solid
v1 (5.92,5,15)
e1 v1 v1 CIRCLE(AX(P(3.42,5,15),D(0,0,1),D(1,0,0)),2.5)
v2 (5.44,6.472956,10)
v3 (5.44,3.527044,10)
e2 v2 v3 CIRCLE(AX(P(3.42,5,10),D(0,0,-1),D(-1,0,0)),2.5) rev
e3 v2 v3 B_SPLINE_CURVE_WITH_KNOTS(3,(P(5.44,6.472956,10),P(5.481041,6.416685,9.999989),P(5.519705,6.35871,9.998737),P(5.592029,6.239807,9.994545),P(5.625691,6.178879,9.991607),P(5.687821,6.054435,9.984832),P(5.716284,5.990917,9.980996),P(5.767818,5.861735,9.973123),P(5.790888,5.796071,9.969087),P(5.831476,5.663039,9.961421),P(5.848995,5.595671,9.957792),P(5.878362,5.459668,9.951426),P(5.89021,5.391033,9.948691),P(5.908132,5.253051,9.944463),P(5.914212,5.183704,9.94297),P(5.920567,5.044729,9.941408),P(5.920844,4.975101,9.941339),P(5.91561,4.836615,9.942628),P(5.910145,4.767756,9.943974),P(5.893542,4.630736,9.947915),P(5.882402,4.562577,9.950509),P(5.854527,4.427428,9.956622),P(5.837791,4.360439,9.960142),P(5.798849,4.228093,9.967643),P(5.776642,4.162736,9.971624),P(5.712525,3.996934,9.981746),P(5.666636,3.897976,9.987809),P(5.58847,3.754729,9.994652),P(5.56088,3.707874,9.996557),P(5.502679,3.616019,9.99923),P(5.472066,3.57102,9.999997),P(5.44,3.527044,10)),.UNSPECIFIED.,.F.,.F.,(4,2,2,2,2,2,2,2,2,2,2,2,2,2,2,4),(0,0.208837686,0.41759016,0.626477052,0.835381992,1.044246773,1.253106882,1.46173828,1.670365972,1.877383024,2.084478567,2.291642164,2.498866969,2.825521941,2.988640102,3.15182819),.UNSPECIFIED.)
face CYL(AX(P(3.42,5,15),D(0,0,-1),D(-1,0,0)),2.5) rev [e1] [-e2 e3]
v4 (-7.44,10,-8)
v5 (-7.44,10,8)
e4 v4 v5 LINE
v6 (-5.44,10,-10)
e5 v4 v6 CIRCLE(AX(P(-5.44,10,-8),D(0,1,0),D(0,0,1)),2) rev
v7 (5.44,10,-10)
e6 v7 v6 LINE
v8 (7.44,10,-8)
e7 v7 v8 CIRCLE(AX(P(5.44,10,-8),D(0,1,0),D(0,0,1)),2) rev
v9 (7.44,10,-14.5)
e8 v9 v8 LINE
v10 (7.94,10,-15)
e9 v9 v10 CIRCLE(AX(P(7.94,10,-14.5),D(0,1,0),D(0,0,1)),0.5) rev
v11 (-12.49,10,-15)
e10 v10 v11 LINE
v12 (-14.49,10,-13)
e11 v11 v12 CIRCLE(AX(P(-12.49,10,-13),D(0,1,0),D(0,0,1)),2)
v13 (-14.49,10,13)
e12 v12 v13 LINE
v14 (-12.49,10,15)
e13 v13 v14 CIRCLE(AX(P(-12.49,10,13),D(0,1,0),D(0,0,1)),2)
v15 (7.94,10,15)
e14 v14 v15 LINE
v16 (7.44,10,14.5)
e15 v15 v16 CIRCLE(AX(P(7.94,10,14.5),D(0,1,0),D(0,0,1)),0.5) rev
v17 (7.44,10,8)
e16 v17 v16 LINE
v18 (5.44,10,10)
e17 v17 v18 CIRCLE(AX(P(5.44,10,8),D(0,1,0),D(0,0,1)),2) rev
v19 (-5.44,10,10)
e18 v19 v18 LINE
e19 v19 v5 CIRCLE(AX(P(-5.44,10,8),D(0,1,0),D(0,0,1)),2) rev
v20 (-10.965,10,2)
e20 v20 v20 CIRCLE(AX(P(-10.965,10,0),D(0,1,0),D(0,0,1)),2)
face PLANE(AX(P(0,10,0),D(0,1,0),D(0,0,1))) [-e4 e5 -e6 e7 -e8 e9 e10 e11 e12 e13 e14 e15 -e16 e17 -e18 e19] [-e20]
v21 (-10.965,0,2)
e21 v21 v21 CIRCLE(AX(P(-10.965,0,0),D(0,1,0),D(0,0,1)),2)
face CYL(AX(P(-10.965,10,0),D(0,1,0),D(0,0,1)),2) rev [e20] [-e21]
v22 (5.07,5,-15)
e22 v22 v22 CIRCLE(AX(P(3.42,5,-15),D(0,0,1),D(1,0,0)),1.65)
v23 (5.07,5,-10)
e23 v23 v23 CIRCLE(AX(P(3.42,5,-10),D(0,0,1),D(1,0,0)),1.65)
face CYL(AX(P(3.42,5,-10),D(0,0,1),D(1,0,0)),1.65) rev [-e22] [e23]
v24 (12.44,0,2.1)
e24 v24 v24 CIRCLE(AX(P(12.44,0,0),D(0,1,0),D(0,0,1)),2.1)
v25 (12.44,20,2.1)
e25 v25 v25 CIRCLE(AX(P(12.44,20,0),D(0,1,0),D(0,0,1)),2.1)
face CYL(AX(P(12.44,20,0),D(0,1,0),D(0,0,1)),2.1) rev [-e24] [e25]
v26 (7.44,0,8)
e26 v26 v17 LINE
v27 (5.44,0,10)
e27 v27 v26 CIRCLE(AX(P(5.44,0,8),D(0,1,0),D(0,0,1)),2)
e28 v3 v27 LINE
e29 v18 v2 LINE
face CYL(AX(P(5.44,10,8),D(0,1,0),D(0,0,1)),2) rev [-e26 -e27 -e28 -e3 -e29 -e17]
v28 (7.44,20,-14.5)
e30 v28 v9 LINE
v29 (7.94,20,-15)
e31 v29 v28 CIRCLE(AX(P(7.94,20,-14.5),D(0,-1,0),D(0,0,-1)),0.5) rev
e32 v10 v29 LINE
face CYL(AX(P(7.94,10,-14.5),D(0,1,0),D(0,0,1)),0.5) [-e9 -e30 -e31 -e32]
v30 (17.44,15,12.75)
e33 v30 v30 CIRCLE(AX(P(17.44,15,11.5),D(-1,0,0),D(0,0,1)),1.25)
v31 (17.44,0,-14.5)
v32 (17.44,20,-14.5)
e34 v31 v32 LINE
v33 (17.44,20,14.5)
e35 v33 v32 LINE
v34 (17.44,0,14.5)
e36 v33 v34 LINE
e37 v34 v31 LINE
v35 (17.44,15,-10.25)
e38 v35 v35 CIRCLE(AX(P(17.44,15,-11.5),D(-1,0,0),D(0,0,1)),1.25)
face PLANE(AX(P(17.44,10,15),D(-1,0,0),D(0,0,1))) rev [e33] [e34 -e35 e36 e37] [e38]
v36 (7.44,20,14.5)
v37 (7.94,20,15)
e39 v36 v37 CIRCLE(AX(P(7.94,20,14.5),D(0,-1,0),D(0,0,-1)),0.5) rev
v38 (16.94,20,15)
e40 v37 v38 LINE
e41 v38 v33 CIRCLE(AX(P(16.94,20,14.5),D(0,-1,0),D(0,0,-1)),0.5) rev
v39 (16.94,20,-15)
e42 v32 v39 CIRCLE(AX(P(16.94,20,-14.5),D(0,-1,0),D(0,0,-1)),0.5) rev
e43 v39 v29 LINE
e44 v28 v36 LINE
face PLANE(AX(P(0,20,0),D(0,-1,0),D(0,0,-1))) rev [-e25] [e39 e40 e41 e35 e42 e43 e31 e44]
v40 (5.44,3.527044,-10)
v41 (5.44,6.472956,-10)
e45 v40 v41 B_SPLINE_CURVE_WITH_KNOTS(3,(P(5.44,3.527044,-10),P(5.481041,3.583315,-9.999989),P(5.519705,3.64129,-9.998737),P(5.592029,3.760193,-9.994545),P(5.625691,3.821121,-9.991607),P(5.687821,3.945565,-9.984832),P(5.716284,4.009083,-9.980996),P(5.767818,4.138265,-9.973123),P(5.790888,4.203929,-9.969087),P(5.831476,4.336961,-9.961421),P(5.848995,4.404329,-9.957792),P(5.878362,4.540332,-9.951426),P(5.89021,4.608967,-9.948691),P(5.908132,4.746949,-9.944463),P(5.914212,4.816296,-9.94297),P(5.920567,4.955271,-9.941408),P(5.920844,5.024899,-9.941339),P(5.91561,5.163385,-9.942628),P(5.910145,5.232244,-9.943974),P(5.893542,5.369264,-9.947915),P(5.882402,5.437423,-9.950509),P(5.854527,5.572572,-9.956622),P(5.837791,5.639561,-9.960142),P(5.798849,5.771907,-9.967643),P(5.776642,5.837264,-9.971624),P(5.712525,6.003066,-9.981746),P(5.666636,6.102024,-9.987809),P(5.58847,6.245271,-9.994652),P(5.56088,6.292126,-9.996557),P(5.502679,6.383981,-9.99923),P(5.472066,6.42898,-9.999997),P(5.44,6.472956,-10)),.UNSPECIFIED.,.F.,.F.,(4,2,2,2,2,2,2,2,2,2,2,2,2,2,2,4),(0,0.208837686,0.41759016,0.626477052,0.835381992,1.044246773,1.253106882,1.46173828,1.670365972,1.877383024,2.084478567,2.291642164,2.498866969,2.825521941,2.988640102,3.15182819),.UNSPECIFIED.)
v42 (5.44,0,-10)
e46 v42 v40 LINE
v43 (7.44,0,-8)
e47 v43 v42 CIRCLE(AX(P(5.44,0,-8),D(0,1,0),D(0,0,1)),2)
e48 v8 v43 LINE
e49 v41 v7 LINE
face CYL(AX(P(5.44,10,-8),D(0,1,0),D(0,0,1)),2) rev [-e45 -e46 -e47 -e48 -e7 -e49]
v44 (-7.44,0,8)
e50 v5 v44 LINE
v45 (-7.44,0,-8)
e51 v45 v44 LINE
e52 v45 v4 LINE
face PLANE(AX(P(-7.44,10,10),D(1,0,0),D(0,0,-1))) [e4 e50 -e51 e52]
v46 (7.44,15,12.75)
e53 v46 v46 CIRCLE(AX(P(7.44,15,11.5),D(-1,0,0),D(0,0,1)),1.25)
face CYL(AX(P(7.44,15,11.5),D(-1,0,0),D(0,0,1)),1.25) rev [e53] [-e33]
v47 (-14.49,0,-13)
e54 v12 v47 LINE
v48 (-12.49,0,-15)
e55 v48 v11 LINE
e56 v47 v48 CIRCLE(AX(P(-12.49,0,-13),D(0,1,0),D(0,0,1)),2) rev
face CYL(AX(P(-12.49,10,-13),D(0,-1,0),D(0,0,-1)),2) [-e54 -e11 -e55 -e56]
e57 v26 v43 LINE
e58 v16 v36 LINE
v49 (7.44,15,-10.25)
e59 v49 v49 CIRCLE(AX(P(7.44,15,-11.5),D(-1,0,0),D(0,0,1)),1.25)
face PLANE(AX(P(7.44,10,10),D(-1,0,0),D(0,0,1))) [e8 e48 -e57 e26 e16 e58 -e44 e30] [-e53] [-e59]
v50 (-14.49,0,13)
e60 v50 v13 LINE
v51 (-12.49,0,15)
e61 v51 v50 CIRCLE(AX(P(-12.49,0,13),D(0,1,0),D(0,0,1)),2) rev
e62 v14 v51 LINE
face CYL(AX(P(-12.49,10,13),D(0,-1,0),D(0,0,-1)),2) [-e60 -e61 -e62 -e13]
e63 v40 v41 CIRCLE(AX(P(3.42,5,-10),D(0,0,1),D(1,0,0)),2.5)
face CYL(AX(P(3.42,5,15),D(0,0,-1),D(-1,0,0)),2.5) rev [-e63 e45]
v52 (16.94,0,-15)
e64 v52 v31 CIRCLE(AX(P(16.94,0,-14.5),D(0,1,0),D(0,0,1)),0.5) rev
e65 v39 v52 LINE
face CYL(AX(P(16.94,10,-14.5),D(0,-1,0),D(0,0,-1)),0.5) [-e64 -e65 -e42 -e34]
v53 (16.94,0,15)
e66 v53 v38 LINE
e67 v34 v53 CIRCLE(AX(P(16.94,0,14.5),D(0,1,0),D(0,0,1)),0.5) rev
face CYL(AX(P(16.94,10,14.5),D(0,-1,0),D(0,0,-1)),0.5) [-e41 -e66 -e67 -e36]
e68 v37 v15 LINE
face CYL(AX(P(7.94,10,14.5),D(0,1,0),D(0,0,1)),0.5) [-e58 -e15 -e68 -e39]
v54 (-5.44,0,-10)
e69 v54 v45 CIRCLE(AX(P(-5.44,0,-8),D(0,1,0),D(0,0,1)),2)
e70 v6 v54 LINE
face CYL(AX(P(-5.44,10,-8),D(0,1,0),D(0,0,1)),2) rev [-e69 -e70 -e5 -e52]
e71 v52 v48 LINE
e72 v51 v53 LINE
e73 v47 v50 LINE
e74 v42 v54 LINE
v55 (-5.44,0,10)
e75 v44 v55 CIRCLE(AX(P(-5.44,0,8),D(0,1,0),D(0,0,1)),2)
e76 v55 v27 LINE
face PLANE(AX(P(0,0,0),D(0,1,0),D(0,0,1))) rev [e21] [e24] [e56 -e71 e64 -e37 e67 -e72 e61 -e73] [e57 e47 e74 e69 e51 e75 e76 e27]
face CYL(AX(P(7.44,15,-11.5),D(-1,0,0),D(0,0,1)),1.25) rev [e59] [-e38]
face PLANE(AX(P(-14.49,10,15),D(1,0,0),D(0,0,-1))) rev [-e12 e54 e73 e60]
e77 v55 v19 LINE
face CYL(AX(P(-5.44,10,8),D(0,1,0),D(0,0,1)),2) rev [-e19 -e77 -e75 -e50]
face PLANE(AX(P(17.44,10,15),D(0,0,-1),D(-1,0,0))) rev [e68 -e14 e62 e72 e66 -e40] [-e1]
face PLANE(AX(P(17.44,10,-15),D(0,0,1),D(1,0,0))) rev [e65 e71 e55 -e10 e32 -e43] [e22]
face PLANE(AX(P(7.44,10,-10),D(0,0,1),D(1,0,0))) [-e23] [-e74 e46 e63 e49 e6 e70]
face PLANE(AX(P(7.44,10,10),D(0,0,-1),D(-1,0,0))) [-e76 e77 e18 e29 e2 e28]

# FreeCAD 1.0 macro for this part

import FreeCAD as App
import Part
import Sketcher

V = App.Vector
Q = App.Units.Quantity


def edges_at(feature, points):
    """Names of the edges that pass closest to the given points."""
    edges = feature.Shape.Edges
    near = lambda p: min(range(len(edges)), key=lambda i: edges[i].distToShape(Part.Vertex(*p))[0])
    return sorted({f"Edge{near(p) + 1}" for p in points})


def add_polygon(sketch, points):
    """Adds a closed chain of lines whose ends are joined by coincident constraints."""
    first, n = sketch.GeometryCount, len(points)
    for a, b in zip(points, points[1:] + points[:1]):
        sketch.addGeometry(Part.LineSegment(App.Vector(*a, 0), App.Vector(*b, 0)), False)
    for i in range(n):
        sketch.addConstraint(Sketcher.Constraint("Coincident", first + i, 2, first + (i + 1) % n, 1))

doc = App.newDocument("Part")
body = doc.addObject("PartDesign::Body", "Body")

# Sketch on XZ plane
sketch1 = doc.addObject("Sketcher::SketchObject", "Sketch")
body.addObject(sketch1)
sketch1.AttachmentSupport = (doc.XZ_Plane, [""])
sketch1.MapMode = "FlatFace"
add_polygon(sketch1, [(-14.49, -15), (-14.49, 15), (17.44, 15), (17.44, -15)])  # lines 0-3
add_polygon(sketch1, [(7.44, 10), (-7.44, 10), (-7.44, -10), (7.44, -10)])  # lines 4-7
sketch1.addConstraint(Sketcher.Constraint("Vertical", 0))
sketch1.addConstraint(Sketcher.Constraint("Horizontal", 1))
sketch1.addConstraint(Sketcher.Constraint("Vertical", 2))
sketch1.addConstraint(Sketcher.Constraint("Horizontal", 3))
sketch1.addConstraint(Sketcher.Constraint("Horizontal", 4))
sketch1.addConstraint(Sketcher.Constraint("Vertical", 5))
sketch1.addConstraint(Sketcher.Constraint("Horizontal", 6))
sketch1.addConstraint(Sketcher.Constraint("Vertical", 7))
sketch1.addConstraint(Sketcher.Constraint("Symmetric", 4, 2, 6, 2, -1, 1))
sketch1.addConstraint(Sketcher.Constraint("DistanceY", 0, 1, 0, 2, Q("30 mm")))
sketch1.addConstraint(Sketcher.Constraint("DistanceY", 5, 2, 5, 1, Q("20 mm")))
sketch1.addConstraint(Sketcher.Constraint("DistanceY", -1, 1, 0, 2, Q("15 mm")))
sketch1.addConstraint(Sketcher.Constraint("DistanceX", 6, 2, 2, 2, Q("10 mm")))
sketch1.addConstraint(Sketcher.Constraint("DistanceX", 1, 1, 1, 2, Q("31.93 mm")))
sketch1.addConstraint(Sketcher.Constraint("DistanceX", 4, 2, 4, 1, Q("14.88 mm")))
pad1 = doc.addObject("PartDesign::Pad", "Pad")
body.addObject(pad1)
pad1.Profile = sketch1
pad1.Length = 10
pad1.Reversed = True

# Sketch on XZ plane
sketch2 = doc.addObject("Sketcher::SketchObject", "Sketch001")
body.addObject(sketch2)
sketch2.AttachmentSupport = (doc.XZ_Plane, [""])
sketch2.MapMode = "FlatFace"
sketch2.AttachmentOffset = App.Placement(V(0, 0, -10), App.Rotation())
add_polygon(sketch2, [(7.44, -15), (7.44, 15), (17.44, 15), (17.44, -15)])  # lines 0-3
sketch2.addConstraint(Sketcher.Constraint("Vertical", 0))
sketch2.addConstraint(Sketcher.Constraint("Horizontal", 1))
sketch2.addConstraint(Sketcher.Constraint("Vertical", 2))
sketch2.addConstraint(Sketcher.Constraint("Horizontal", 3))
sketch2.addConstraint(Sketcher.Constraint("DistanceX", 1, 1, 1, 2, Q("10 mm")))
sketch2.addConstraint(Sketcher.Constraint("DistanceY", 0, 1, 0, 2, Q("30 mm")))
sketch2.addConstraint(Sketcher.Constraint("DistanceY", -1, 1, 0, 2, Q("15 mm")))
sketch2.addConstraint(Sketcher.Constraint("DistanceX", -1, 1, 0, 2, Q("7.44 mm")))
pad2 = doc.addObject("PartDesign::Pad", "Pad001")
body.addObject(pad2)
pad2.Profile = sketch2
pad2.Length = 10
pad2.Reversed = True

# Sketch on XZ plane
sketch3 = doc.addObject("Sketcher::SketchObject", "Sketch002")
body.addObject(sketch3)
sketch3.AttachmentSupport = (doc.XZ_Plane, [""])
sketch3.MapMode = "FlatFace"
sketch3.AttachmentOffset = App.Placement(V(0, 0, -20), App.Rotation())
sketch3.addGeometry(Part.Circle(V(12.44, 0, 0), V(0, 0, 1), 2.1), False)
sketch3.addConstraint(Sketcher.Constraint("PointOnObject", 0, 3, -1))
sketch3.addConstraint(Sketcher.Constraint("Diameter", 0, Q("4.2 mm")))
sketch3.addConstraint(Sketcher.Constraint("DistanceX", -1, 1, 0, 3, Q("12.44 mm")))
doc.recompute()
hole = doc.addObject("PartDesign::Hole", "Hole")
body.addObject(hole)
hole.Profile = sketch3
hole.ThreadType = "None"
hole.Diameter = 4.2
hole.DepthType = "ThroughAll"
hole.Reversed = True
doc.recompute()

fillet = doc.addObject("PartDesign::Fillet", "Fillet")
body.addObject(fillet)
fillet.Base = (hole, edges_at(hole, [
    (-7.44, 5, -10),
    (-7.44, 5, 10),
    (7.44, 5, 10),
    (7.44, 5, -10),
]))
fillet.Radius = 2

# Sketch on XY plane
sketch4 = doc.addObject("Sketcher::SketchObject", "Sketch003")
body.addObject(sketch4)
sketch4.AttachmentSupport = (doc.XY_Plane, [""])
sketch4.MapMode = "FlatFace"
sketch4.AttachmentOffset = App.Placement(V(0, 0, -10), App.Rotation())
sketch4.addGeometry(Part.Circle(V(3.42, 5, 0), V(0, 0, 1), 2.5), False)
sketch4.addConstraint(Sketcher.Constraint("Diameter", 0, Q("5 mm")))
sketch4.addConstraint(Sketcher.Constraint("DistanceY", -1, 1, 0, 3, Q("5 mm")))
sketch4.addConstraint(Sketcher.Constraint("DistanceX", -1, 1, 0, 3, Q("3.42 mm")))
pocket1 = doc.addObject("PartDesign::Pocket", "Pocket")
body.addObject(pocket1)
pocket1.Profile = sketch4
pocket1.Type = "ThroughAll"
pocket1.Reversed = True

# Sketch on XY plane
sketch5 = doc.addObject("Sketcher::SketchObject", "Sketch004")
body.addObject(sketch5)
sketch5.AttachmentSupport = (doc.XY_Plane, [""])
sketch5.MapMode = "FlatFace"
sketch5.AttachmentOffset = App.Placement(V(0, 0, -10), App.Rotation())
sketch5.addGeometry(Part.Circle(V(3.42, 5, 0), V(0, 0, 1), 1.65), False)
sketch5.addConstraint(Sketcher.Constraint("Diameter", 0, Q("3.3 mm")))
sketch5.addConstraint(Sketcher.Constraint("DistanceY", -1, 1, 0, 3, Q("5 mm")))
sketch5.addConstraint(Sketcher.Constraint("DistanceX", -1, 1, 0, 3, Q("3.42 mm")))
doc.recompute()
hole2 = doc.addObject("PartDesign::Hole", "Hole001")
body.addObject(hole2)
hole2.Profile = sketch5
hole2.ThreadType = "None"
hole2.Diameter = 3.3
hole2.DepthType = "ThroughAll"
doc.recompute()

fillet2 = doc.addObject("PartDesign::Fillet", "Fillet001")
body.addObject(fillet2)
fillet2.Base = (hole2, edges_at(hole2, [(-14.49, 5, -15), (-14.49, 5, 15)]))
fillet2.Radius = 2
doc.recompute()

fillet3 = doc.addObject("PartDesign::Fillet", "Fillet002")
body.addObject(fillet3)
fillet3.Base = (fillet2, edges_at(fillet2, [
    (7.44, 15, -15),
    (7.44, 15, 15),
    (17.44, 10, -15),
    (17.44, 10, 15),
]))
fillet3.Radius = 0.5

# Sketch on YZ plane
sketch6 = doc.addObject("Sketcher::SketchObject", "Sketch005")
body.addObject(sketch6)
sketch6.AttachmentSupport = (doc.YZ_Plane, [""])
sketch6.MapMode = "FlatFace"
sketch6.AttachmentOffset = App.Placement(V(0, 0, 7.44), App.Rotation())
sketch6.addGeometry(Part.Circle(V(15, -11.5, 0), V(0, 0, 1), 1.25), False)
sketch6.addGeometry(Part.Circle(V(15, 11.5, 0), V(0, 0, 1), 1.25), False)
sketch6.addConstraint(Sketcher.Constraint("Equal", 0, 1))
sketch6.addConstraint(Sketcher.Constraint("Symmetric", 0, 3, 1, 3, -1))
sketch6.addConstraint(Sketcher.Constraint("Diameter", 0, Q("2.5 mm")))
sketch6.addConstraint(Sketcher.Constraint("DistanceX", -1, 1, 0, 3, Q("15 mm")))
sketch6.addConstraint(Sketcher.Constraint("DistanceY", 0, 3, 1, 3, Q("23 mm")))
doc.recompute()
hole3 = doc.addObject("PartDesign::Hole", "Hole002")
body.addObject(hole3)
hole3.Profile = sketch6
hole3.ThreadType = "None"
hole3.Diameter = 2.5
hole3.DepthType = "ThroughAll"
hole3.Reversed = True

# Sketch on XZ plane
sketch7 = doc.addObject("Sketcher::SketchObject", "Sketch006")
body.addObject(sketch7)
sketch7.AttachmentSupport = (doc.XZ_Plane, [""])
sketch7.MapMode = "FlatFace"
sketch7.AttachmentOffset = App.Placement(V(0, 0, -10), App.Rotation())
sketch7.addGeometry(Part.Circle(V(-10.965, 0, 0), V(0, 0, 1), 2), False)
sketch7.addConstraint(Sketcher.Constraint("PointOnObject", 0, 3, -1))
sketch7.addConstraint(Sketcher.Constraint("Diameter", 0, Q("4 mm")))
sketch7.addConstraint(Sketcher.Constraint("DistanceX", 0, 3, -1, 1, Q("10.965 mm")))
doc.recompute()
hole4 = doc.addObject("PartDesign::Hole", "Hole003")
body.addObject(hole4)
hole4.Profile = sketch7
hole4.ThreadType = "None"
hole4.Diameter = 4
hole4.DepthType = "ThroughAll"
hole4.Reversed = True

doc.recompute()
